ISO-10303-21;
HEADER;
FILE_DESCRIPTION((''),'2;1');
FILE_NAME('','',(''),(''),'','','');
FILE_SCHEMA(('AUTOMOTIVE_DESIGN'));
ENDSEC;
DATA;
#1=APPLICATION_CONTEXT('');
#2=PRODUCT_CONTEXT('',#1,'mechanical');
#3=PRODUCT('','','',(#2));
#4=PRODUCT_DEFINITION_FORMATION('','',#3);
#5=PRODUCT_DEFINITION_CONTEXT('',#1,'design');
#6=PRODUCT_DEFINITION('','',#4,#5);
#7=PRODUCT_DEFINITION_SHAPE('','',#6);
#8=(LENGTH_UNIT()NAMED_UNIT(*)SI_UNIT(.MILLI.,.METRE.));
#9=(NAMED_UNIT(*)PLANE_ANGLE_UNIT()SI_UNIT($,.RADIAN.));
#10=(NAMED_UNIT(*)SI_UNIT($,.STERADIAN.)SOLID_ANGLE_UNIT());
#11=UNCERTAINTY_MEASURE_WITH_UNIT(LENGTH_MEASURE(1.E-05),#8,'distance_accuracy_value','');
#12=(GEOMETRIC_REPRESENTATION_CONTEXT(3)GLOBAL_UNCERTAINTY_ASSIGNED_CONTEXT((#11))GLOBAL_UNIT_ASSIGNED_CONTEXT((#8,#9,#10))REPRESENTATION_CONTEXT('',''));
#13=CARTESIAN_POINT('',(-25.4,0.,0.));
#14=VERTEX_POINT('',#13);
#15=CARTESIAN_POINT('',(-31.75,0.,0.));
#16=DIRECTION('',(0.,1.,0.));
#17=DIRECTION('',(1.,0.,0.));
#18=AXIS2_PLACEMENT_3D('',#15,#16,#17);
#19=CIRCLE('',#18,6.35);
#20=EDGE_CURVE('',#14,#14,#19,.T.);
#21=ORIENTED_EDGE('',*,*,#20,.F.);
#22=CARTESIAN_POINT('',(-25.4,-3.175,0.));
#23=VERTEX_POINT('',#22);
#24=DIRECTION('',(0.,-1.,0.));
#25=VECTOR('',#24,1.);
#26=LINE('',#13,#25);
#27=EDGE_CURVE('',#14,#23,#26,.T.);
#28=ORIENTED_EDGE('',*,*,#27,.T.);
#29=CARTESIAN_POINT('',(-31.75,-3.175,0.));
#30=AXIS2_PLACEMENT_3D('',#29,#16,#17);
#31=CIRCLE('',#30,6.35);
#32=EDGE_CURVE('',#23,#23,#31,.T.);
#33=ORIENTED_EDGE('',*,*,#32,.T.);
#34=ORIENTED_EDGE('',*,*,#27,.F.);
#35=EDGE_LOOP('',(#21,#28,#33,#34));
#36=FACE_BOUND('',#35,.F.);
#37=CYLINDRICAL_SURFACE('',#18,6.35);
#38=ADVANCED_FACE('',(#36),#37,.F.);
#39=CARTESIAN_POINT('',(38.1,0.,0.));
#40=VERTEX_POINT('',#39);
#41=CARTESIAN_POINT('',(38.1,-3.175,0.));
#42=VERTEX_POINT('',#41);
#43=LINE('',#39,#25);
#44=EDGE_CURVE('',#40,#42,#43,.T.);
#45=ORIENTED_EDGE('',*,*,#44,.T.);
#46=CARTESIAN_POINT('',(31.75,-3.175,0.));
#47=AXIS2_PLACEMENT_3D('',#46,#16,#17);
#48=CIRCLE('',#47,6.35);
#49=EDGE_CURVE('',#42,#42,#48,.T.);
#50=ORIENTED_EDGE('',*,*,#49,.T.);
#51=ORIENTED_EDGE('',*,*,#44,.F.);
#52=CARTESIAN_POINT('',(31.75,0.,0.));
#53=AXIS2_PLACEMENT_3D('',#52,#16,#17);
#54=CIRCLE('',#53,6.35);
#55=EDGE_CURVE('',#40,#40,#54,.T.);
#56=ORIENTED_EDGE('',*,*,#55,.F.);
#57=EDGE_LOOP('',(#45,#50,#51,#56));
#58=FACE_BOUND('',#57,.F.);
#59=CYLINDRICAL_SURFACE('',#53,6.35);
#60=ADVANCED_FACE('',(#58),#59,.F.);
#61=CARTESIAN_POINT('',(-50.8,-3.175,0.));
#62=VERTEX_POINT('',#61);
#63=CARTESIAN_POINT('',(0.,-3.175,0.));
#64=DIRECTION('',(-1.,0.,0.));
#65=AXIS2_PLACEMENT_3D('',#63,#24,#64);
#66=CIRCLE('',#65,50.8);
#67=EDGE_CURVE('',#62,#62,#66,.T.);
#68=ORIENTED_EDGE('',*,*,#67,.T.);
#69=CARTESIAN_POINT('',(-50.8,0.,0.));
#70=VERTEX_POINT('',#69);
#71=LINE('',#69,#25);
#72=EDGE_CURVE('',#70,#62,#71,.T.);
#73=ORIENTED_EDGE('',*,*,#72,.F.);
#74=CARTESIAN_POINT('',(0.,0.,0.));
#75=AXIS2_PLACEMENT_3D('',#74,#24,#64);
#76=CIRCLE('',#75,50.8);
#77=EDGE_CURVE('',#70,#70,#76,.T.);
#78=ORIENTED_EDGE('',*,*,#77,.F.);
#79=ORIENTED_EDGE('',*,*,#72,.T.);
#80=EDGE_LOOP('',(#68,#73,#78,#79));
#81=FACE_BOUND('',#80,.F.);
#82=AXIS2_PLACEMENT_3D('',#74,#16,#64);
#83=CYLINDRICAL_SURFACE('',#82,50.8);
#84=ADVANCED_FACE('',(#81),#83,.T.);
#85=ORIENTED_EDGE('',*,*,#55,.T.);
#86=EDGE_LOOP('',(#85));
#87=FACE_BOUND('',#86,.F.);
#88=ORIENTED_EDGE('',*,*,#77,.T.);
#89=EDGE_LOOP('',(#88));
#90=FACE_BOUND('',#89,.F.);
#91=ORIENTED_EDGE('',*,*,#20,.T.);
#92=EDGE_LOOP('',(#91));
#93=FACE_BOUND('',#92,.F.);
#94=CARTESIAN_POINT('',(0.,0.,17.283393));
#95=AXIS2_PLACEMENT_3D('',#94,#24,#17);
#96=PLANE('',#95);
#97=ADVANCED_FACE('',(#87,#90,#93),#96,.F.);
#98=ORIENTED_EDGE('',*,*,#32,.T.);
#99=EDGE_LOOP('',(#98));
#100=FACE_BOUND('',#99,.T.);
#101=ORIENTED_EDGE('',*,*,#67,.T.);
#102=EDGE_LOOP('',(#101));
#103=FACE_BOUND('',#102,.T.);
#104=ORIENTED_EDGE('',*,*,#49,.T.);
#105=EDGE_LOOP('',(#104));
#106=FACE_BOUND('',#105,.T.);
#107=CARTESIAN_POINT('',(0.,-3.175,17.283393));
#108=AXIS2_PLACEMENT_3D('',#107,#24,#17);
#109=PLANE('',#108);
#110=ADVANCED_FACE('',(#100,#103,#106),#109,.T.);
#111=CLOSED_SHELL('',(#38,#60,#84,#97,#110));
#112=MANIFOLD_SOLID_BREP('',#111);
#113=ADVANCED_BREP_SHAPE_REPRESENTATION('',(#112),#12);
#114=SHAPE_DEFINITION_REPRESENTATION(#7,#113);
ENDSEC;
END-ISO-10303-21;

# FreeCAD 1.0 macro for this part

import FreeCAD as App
import Part
import Sketcher

V = App.Vector
Q = App.Units.Quantity

doc = App.newDocument("Part")
body = doc.addObject("PartDesign::Body", "Body")

# Sketch on XZ plane
sketch1 = doc.addObject("Sketcher::SketchObject", "Sketch")
body.addObject(sketch1)
sketch1.AttachmentSupport = (doc.XZ_Plane, [""])
sketch1.MapMode = "FlatFace"
sketch1.addGeometry(Part.Circle(V(0, 0, 0), V(0, 0, 1), 50.8), False)
sketch1.addGeometry(Part.Circle(V(-31.75, 0, 0), V(0, 0, 1), 6.35), False)
sketch1.addGeometry(Part.Circle(V(31.75, 0, 0), V(0, 0, 1), 6.35), False)
sketch1.addConstraint(Sketcher.Constraint("Coincident", 0, 3, -1, 1))
sketch1.addConstraint(Sketcher.Constraint("Equal", 1, 2))
sketch1.addConstraint(Sketcher.Constraint("Symmetric", 1, 3, 2, 3, -1, 1))
sketch1.addConstraint(Sketcher.Constraint("PointOnObject", 1, 3, -1))
sketch1.addConstraint(Sketcher.Constraint("Diameter", 0, Q("4 in")))
sketch1.addConstraint(Sketcher.Constraint("Diameter", 1, Q("0.5 in")))
sketch1.addConstraint(Sketcher.Constraint("DistanceX", 1, 3, 2, 3, Q("2.5 in")))
pad1 = doc.addObject("PartDesign::Pad", "Pad")
body.addObject(pad1)
pad1.Profile = sketch1
pad1.Length = Q("0.125 in")

doc.recompute()
